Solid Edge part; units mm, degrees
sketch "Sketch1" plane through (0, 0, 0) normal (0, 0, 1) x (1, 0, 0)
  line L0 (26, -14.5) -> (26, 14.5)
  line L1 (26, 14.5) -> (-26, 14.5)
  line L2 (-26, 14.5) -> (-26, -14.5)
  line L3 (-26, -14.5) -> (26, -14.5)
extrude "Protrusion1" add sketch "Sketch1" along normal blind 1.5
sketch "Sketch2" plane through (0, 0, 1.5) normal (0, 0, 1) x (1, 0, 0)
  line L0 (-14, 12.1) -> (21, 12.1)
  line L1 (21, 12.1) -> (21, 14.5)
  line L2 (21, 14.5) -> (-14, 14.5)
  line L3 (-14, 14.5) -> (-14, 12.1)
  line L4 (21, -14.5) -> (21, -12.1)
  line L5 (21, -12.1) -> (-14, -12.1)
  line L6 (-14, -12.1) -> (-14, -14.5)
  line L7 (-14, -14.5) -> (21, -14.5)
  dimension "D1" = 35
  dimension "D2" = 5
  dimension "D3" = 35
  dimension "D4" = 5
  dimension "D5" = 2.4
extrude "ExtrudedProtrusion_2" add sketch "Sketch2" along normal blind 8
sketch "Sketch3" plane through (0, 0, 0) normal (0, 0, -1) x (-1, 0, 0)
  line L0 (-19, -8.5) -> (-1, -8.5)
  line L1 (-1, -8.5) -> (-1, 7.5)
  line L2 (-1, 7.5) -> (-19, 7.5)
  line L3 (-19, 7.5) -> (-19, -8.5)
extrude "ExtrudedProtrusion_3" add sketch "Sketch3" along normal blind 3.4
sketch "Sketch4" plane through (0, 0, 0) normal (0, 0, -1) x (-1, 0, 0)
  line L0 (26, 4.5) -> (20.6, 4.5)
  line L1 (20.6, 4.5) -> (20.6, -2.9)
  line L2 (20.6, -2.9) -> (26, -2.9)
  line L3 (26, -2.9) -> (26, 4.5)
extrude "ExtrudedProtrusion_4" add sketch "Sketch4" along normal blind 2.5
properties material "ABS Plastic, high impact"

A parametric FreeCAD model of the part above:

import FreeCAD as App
import Part
import Sketcher

V = App.Vector


def add_polygon(sketch, points):
    """Adds a closed chain of lines whose ends are joined by coincident constraints."""
    first, n = sketch.GeometryCount, len(points)
    for a, b in zip(points, points[1:] + points[:1]):
        sketch.addGeometry(Part.LineSegment(App.Vector(*a, 0), App.Vector(*b, 0)), False)
    for i in range(n):
        sketch.addConstraint(Sketcher.Constraint("Coincident", first + i, 2, first + (i + 1) % n, 1))

doc = App.newDocument("Part")
body = doc.addObject("PartDesign::Body", "Body")

# Sketch on XY plane
sketch1 = body.newObject("Sketcher::SketchObject", "Sketch")
sketch1.AttachmentSupport = (doc.getObject("XY_Plane"), [""])
sketch1.MapMode = "FlatFace"
add_polygon(sketch1, [(-26, -14), (26, -14), (26, 14), (-26, 14)])  # lines 0-3
sketch1.addConstraint(Sketcher.Constraint("Horizontal", 0))
sketch1.addConstraint(Sketcher.Constraint("Vertical", 1))
sketch1.addConstraint(Sketcher.Constraint("Horizontal", 2))
sketch1.addConstraint(Sketcher.Constraint("Vertical", 3))
sketch1.addConstraint(Sketcher.Constraint("Symmetric", 0, 2, 2, 2, -1, 1))
sketch1.addConstraint(Sketcher.Constraint("DistanceX", 0, 1, 0, 2, 52.0))
sketch1.addConstraint(Sketcher.Constraint("DistanceY", 1, 1, 1, 2, 29.0))
pad1 = body.newObject("PartDesign::Pad", "Pad")
pad1.Profile = sketch1
pad1.Length = 1.5

# Sketch on XY plane
sketch2 = body.newObject("Sketcher::SketchObject", "Sketch001")
sketch2.AttachmentSupport = (doc.getObject("XY_Plane"), [""])
sketch2.MapMode = "FlatFace"
sketch2.AttachmentOffset = App.Placement(V(0, 0, 1.5), App.Rotation())
add_polygon(sketch2, [(-14, 14.5), (-14, 12.1), (21, 12.1), (21, 14.5)])  # lines 0-3
add_polygon(sketch2, [(-14, -14.5), (21, -14.5), (21, -12.1), (-14, -12.1)])  # lines 4-7
sketch2.addConstraint(Sketcher.Constraint("Vertical", 0))
sketch2.addConstraint(Sketcher.Constraint("Horizontal", 1))
sketch2.addConstraint(Sketcher.Constraint("Vertical", 2))
sketch2.addConstraint(Sketcher.Constraint("Horizontal", 3))
sketch2.addConstraint(Sketcher.Constraint("Horizontal", 4))
sketch2.addConstraint(Sketcher.Constraint("Vertical", 5))
sketch2.addConstraint(Sketcher.Constraint("Horizontal", 6))
sketch2.addConstraint(Sketcher.Constraint("Vertical", 7))
sketch2.addConstraint(Sketcher.Constraint("Symmetric", 2, 2, 4, 2, -1))
sketch2.addConstraint(Sketcher.Constraint("Symmetric", 0, 2, 6, 2, -1))
sketch2.addConstraint(Sketcher.Constraint("DistanceX", 1, 1, 1, 2, 35.0))
sketch2.addConstraint(Sketcher.Constraint("DistanceY", 0, 2, 0, 1, 2.4))
sketch2.addConstraint(Sketcher.Constraint("DistanceX", 0, 2, -1, 1, 14.0))
sketch2.addConstraint(Sketcher.Constraint("DistanceY", 4, 2, 2, 2, 29.0))
pad2 = body.newObject("PartDesign::Pad", "Pad001")
pad2.Profile = sketch2
pad2.Length = 8

# Sketch on XY plane
sketch3 = body.newObject("Sketcher::SketchObject", "Sketch002")
sketch3.AttachmentSupport = (doc.getObject("XY_Plane"), [""])
sketch3.MapMode = "FlatFace"
add_polygon(sketch3, [(19, 8), (19, -8), (1, -8), (1, 8)])  # lines 0-3
sketch3.addConstraint(Sketcher.Constraint("Vertical", 0))
sketch3.addConstraint(Sketcher.Constraint("Horizontal", 1))
sketch3.addConstraint(Sketcher.Constraint("Vertical", 2))
sketch3.addConstraint(Sketcher.Constraint("Horizontal", 3))
sketch3.addConstraint(Sketcher.Constraint("DistanceX", 1, 2, 1, 1, 18.0))
sketch3.addConstraint(Sketcher.Constraint("DistanceY", 0, 2, 0, 1, 16.0))
sketch3.addConstraint(Sketcher.Constraint("DistanceX", -1, 1, 0, 2, 19.0))
sketch3.addConstraint(Sketcher.Constraint("DistanceY", 0, 2, -1, 1, 8.5))
pad3 = body.newObject("PartDesign::Pad", "Pad002")
pad3.Profile = sketch3
pad3.Length = 3.4
pad3.Reversed = True

# Sketch on XY plane
sketch4 = body.newObject("Sketcher::SketchObject", "Sketch003")
sketch4.AttachmentSupport = (doc.getObject("XY_Plane"), [""])
sketch4.MapMode = "FlatFace"
add_polygon(sketch4, [(-26, -3), (-26, 4), (-21, 4), (-21, -3)])  # lines 0-3
sketch4.addConstraint(Sketcher.Constraint("Vertical", 0))
sketch4.addConstraint(Sketcher.Constraint("Horizontal", 1))
sketch4.addConstraint(Sketcher.Constraint("Vertical", 2))
sketch4.addConstraint(Sketcher.Constraint("Horizontal", 3))
sketch4.addConstraint(Sketcher.Constraint("DistanceX", 1, 1, 1, 2, 5.4))
sketch4.addConstraint(Sketcher.Constraint("DistanceY", 0, 1, 0, 2, 7.4))
sketch4.addConstraint(Sketcher.Constraint("DistanceX", 0, 2, -1, 1, 26.0))
sketch4.addConstraint(Sketcher.Constraint("DistanceY", -1, 1, 0, 2, 4.5))
pad4 = body.newObject("PartDesign::Pad", "Pad003")
pad4.Profile = sketch4
pad4.Length = 2.5
pad4.Reversed = True

doc.recompute()
